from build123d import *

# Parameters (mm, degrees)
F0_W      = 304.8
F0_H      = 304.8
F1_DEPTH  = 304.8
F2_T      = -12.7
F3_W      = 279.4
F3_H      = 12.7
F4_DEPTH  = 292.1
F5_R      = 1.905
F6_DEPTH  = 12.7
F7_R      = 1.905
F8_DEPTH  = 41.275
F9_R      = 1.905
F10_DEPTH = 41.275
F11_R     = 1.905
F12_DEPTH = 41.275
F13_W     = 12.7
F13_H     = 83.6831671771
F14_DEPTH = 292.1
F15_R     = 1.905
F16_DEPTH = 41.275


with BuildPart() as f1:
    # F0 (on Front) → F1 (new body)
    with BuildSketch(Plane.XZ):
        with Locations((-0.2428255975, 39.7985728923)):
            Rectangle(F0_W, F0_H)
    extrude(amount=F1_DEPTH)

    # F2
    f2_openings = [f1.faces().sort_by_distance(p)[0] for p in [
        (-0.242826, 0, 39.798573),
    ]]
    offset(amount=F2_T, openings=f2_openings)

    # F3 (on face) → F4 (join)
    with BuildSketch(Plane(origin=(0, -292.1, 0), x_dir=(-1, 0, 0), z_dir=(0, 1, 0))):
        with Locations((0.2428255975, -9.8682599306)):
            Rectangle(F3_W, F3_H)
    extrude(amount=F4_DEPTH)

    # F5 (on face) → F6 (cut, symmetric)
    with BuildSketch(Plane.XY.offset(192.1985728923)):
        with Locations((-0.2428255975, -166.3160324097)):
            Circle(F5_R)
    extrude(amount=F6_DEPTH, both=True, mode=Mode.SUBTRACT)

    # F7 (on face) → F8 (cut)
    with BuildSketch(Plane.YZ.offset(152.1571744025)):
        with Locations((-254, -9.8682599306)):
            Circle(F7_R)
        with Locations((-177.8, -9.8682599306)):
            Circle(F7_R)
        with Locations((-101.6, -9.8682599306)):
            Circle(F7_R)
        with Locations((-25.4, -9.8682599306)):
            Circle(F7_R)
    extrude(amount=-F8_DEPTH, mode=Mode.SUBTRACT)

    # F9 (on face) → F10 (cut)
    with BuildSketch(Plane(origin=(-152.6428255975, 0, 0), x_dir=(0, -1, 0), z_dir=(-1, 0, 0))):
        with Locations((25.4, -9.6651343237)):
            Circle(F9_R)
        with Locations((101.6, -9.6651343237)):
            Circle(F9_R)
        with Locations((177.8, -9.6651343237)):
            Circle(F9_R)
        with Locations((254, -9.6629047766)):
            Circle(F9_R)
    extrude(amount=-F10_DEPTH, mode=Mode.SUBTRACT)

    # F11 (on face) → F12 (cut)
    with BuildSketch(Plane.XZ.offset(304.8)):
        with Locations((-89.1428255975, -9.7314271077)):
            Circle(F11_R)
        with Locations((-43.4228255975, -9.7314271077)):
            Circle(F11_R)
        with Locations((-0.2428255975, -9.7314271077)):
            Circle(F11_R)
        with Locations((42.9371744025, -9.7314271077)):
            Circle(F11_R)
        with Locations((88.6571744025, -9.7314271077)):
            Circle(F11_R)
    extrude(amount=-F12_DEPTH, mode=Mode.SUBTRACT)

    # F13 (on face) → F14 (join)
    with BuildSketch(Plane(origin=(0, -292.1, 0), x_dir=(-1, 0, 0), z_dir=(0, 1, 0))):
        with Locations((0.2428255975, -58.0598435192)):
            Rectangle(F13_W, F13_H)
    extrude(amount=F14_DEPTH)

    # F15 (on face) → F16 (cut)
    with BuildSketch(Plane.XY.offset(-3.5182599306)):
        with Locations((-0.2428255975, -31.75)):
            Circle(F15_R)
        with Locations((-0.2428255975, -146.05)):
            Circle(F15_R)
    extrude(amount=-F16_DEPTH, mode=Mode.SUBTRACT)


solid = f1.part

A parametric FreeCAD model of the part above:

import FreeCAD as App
import Part
import Sketcher

V = App.Vector
Q = App.Units.Quantity


def faces_at(feature, points):
    """Names of the faces that lie closest to the given points."""
    faces = feature.Shape.Faces
    near = lambda p: min(range(len(faces)), key=lambda i: faces[i].distToShape(Part.Vertex(*p))[0])
    return sorted({f"Face{near(p) + 1}" for p in points})


def add_polygon(sketch, points):
    """Adds a closed chain of lines whose ends are joined by coincident constraints."""
    first, n = sketch.GeometryCount, len(points)
    for a, b in zip(points, points[1:] + points[:1]):
        sketch.addGeometry(Part.LineSegment(App.Vector(*a, 0), App.Vector(*b, 0)), False)
    for i in range(n):
        sketch.addConstraint(Sketcher.Constraint("Coincident", first + i, 2, first + (i + 1) % n, 1))

doc = App.newDocument("Part")
params = doc.addObject("Spreadsheet::Sheet", "Params")
for row, (alias, value) in enumerate([
    ("sketch1_width", "12 in"),
    ("pad1_length", "12 in"),
    ("thickness_wall", "0.5 in"),
    ("sketch2_width", "11 in"),
    ("sketch2_height", "0.5 in"),
    ("pad2_length", "11.5 in"),
    ("sketch3_diameter", "0.15 in"),
    ("pocket1_length", "1 in"),
    ("sketch4_diameter", "0.15 in"),
    ("pocket2_length", "1.625 in"),
    ("sketch5_diameter", "0.15 in"),
    ("pocket3_length", "1.625 in"),
    ("sketch6_diameter", "0.15 in"),
    ("pocket4_length", "1.625 in"),
    ("sketch7_width", "0.5 in"),
    ("pad3_length", "11.5 in"),
    ("sketch8_diameter", "0.15 in"),
    ("pocket5_length", "1.625 in"),
], start=1):
    params.set(f"A{row}", alias)
    params.set(f"B{row}", "=" + value)
    params.setAlias(f"B{row}", alias)

body = doc.addObject("PartDesign::Body", "Body")

# Sketch on XZ plane
sketch1 = body.newObject("Sketcher::SketchObject", "Sketch")
sketch1.AttachmentSupport = (doc.getObject("XZ_Plane"), [""])
sketch1.MapMode = "FlatFace"
add_polygon(sketch1, [(-153, 192), (-153, -113), (152, -113), (152, 192)])  # lines 0-3
sketch1.addConstraint([
    Sketcher.Constraint("Vertical", 0),
    Sketcher.Constraint("Horizontal", 1),
    Sketcher.Constraint("Vertical", 2),
    Sketcher.Constraint("Horizontal", 3),
    Sketcher.Constraint("Equal", 3, 0),
    Sketcher.Constraint("DistanceX", 1, 1, 1, 2, Q("12 in")),
    Sketcher.Constraint("DistanceX", 0, 2, -1, 1, Q("152.642826 mm")),
    Sketcher.Constraint("DistanceY", 0, 2, -1, 1, Q("112.601427 mm")),
])
sketch1.setExpression("Constraints[9]", "Params.sketch1_width")
pad1 = body.newObject("PartDesign::Pad", "Pad")
pad1.Profile = sketch1
pad1.setExpression("Length", "Params.pad1_length")
doc.recompute()

thickness = body.newObject("PartDesign::Thickness", "Thickness")
thickness.Base = (pad1, faces_at(pad1, [(-0.243, 0, 39.799)]))
thickness.setExpression("Value", "Params.thickness_wall")
thickness.Reversed = True
thickness.Join = "Arc"

# Sketch on XZ plane
sketch2 = body.newObject("Sketcher::SketchObject", "Sketch001")
sketch2.AttachmentSupport = (doc.getObject("XZ_Plane"), [""])
sketch2.MapMode = "FlatFace"
sketch2.AttachmentOffset = App.Placement(V(0, 0, 11.5 * 25.4), App.Rotation())
add_polygon(sketch2, [(139, -4), (139, -16), (-140, -16), (-140, -4)])  # lines 0-3
sketch2.addConstraint([
    Sketcher.Constraint("Vertical", 0),
    Sketcher.Constraint("Horizontal", 1),
    Sketcher.Constraint("Vertical", 2),
    Sketcher.Constraint("Horizontal", 3),
    Sketcher.Constraint("DistanceX", 1, 2, 1, 1, Q("11 in")),
    Sketcher.Constraint("DistanceY", 0, 2, 0, 1, Q("0.5 in")),
    Sketcher.Constraint("DistanceY", 0, 2, -1, 1, Q("16.21826 mm")),
    Sketcher.Constraint("DistanceX", -1, 1, 0, 2, Q("139.457174 mm")),
])
sketch2.setExpression("Constraints[8]", "Params.sketch2_width")
sketch2.setExpression("Constraints[9]", "Params.sketch2_height")
pad2 = body.newObject("PartDesign::Pad", "Pad001")
pad2.Profile = sketch2
pad2.setExpression("Length", "Params.pad2_length")
pad2.Reversed = True

# Sketch on XY plane
sketch3 = body.newObject("Sketcher::SketchObject", "Sketch002")
sketch3.AttachmentSupport = (doc.getObject("XY_Plane"), [""])
sketch3.MapMode = "FlatFace"
sketch3.AttachmentOffset = App.Placement(V(0, 0, 192.198573), App.Rotation())
sketch3.addGeometry(Part.Circle(V(-0.2, -166.3, 0), V(0, 0, 1), 1.9), False)
sketch3.addConstraint([
    Sketcher.Constraint("Diameter", 0, Q("0.15 in")),
    Sketcher.Constraint("DistanceX", 0, 3, -1, 1, Q("0.242826 mm")),
    Sketcher.Constraint("DistanceY", 0, 3, -1, 1, Q("166.316032 mm")),
])
sketch3.setExpression("Constraints[0]", "Params.sketch3_diameter")
pocket1 = body.newObject("PartDesign::Pocket", "Pocket")
pocket1.Profile = sketch3
pocket1.setExpression("Length", "Params.pocket1_length")
pocket1.Midplane = True

# Sketch on YZ plane
sketch4 = body.newObject("Sketcher::SketchObject", "Sketch003")
sketch4.AttachmentSupport = (doc.getObject("YZ_Plane"), [""])
sketch4.MapMode = "FlatFace"
sketch4.AttachmentOffset = App.Placement(V(0, 0, 152.157174), App.Rotation())
sketch4.addGeometry([
    Part.Circle(V(-254, -9.9, 0), V(0, 0, 1), 1.9),
    Part.Circle(V(-177.8, -9.9, 0), V(0, 0, 1), 1.9),
    Part.Circle(V(-101.6, -9.9, 0), V(0, 0, 1), 1.9),
    Part.Circle(V(-25.4, -9.9, 0), V(0, 0, 1), 1.9),
], False)
sketch4.addConstraint([
    Sketcher.Constraint("Equal", 0, 1),
    Sketcher.Constraint("Equal", 1, 2),
    Sketcher.Constraint("Equal", 2, 3),
    Sketcher.Constraint("Horizontal", 0, 3, 1, 3),
    Sketcher.Constraint("Horizontal", 1, 3, 2, 3),
    Sketcher.Constraint("Horizontal", 2, 3, 3, 3),
    Sketcher.Constraint("Diameter", 0, Q("0.15 in")),
    Sketcher.Constraint("DistanceX", 0, 3, -1, 1, Q("10 in")),
    Sketcher.Constraint("DistanceX", 1, 3, -1, 1, Q("7 in")),
    Sketcher.Constraint("DistanceX", 2, 3, -1, 1, Q("4 in")),
    Sketcher.Constraint("DistanceX", 3, 3, -1, 1, Q("1 in")),
    Sketcher.Constraint("DistanceY", 0, 3, -1, 1, Q("9.86826 mm")),
])
sketch4.setExpression("Constraints[6]", "Params.sketch4_diameter")
pocket2 = body.newObject("PartDesign::Pocket", "Pocket001")
pocket2.Profile = sketch4
pocket2.setExpression("Length", "Params.pocket2_length")

# Sketch on YZ plane
sketch5 = body.newObject("Sketcher::SketchObject", "Sketch004")
sketch5.AttachmentSupport = (doc.getObject("YZ_Plane"), [""])
sketch5.MapMode = "FlatFace"
sketch5.AttachmentOffset = App.Placement(V(0, 0, -152.642826), App.Rotation())
sketch5.addGeometry([
    Part.Circle(V(-25.4, -9.7, 0), V(0, 0, 1), 1.9),
    Part.Circle(V(-101.6, -9.7, 0), V(0, 0, 1), 1.9),
    Part.Circle(V(-177.8, -9.7, 0), V(0, 0, 1), 1.9),
    Part.Circle(V(-254, -9.7, 0), V(0, 0, 1), 1.9),
], False)
sketch5.addConstraint([
    Sketcher.Constraint("Equal", 0, 1),
    Sketcher.Constraint("Equal", 1, 2),
    Sketcher.Constraint("Equal", 2, 3),
    Sketcher.Constraint("Horizontal", 0, 3, 1, 3),
    Sketcher.Constraint("Horizontal", 1, 3, 2, 3),
    Sketcher.Constraint("Diameter", 0, Q("0.15 in")),
    Sketcher.Constraint("DistanceX", 0, 3, -1, 1, Q("1 in")),
    Sketcher.Constraint("DistanceX", 1, 3, -1, 1, Q("4 in")),
    Sketcher.Constraint("DistanceX", 2, 3, -1, 1, Q("7 in")),
    Sketcher.Constraint("DistanceX", 3, 3, -1, 1, Q("10 in")),
    Sketcher.Constraint("DistanceY", 2, 3, 3, 3, Q("0.00223 mm")),
    Sketcher.Constraint("DistanceY", 0, 3, -1, 1, Q("9.665134 mm")),
])
sketch5.setExpression("Constraints[5]", "Params.sketch5_diameter")
pocket3 = body.newObject("PartDesign::Pocket", "Pocket002")
pocket3.Profile = sketch5
pocket3.setExpression("Length", "Params.pocket3_length")
pocket3.Reversed = True

# Sketch on XZ plane
sketch6 = body.newObject("Sketcher::SketchObject", "Sketch005")
sketch6.AttachmentSupport = (doc.getObject("XZ_Plane"), [""])
sketch6.MapMode = "FlatFace"
sketch6.AttachmentOffset = App.Placement(V(0, 0, 12 * 25.4), App.Rotation())
sketch6.addGeometry([
    Part.Circle(V(-89.1, -9.7, 0), V(0, 0, 1), 1.9),  # 0
    Part.Circle(V(-43.4, -9.7, 0), V(0, 0, 1), 1.9),  # 1
    Part.Circle(V(-0.2, -9.7, 0), V(0, 0, 1), 1.9),  # 2
    Part.Circle(V(42.9, -9.7, 0), V(0, 0, 1), 1.9),  # 3
    Part.Circle(V(88.7, -9.7, 0), V(0, 0, 1), 1.9),  # 4
], False)
sketch6.addConstraint([
    Sketcher.Constraint("Equal", 0, 1),
    Sketcher.Constraint("Equal", 1, 2),
    Sketcher.Constraint("Equal", 2, 3),
    Sketcher.Constraint("Equal", 3, 4),
    Sketcher.Constraint("Horizontal", 0, 3, 1, 3),
    Sketcher.Constraint("Horizontal", 1, 3, 2, 3),
    Sketcher.Constraint("Horizontal", 2, 3, 3, 3),
    Sketcher.Constraint("Horizontal", 3, 3, 4, 3),
    Sketcher.Constraint("Diameter", 0, Q("0.15 in")),
    Sketcher.Constraint("DistanceX", 0, 3, 4, 3, Q("7 in")),
    Sketcher.Constraint("DistanceX", 0, 3, 1, 3, Q("1.8 in")),
    Sketcher.Constraint("DistanceX", 1, 3, 2, 3, Q("1.7 in")),
    Sketcher.Constraint("DistanceX", 2, 3, 3, 3, Q("1.7 in")),
    Sketcher.Constraint("DistanceX", 0, 3, -1, 1, Q("89.142826 mm")),
    Sketcher.Constraint("DistanceY", 0, 3, -1, 1, Q("9.731427 mm")),
])
sketch6.setExpression("Constraints[8]", "Params.sketch6_diameter")
pocket4 = body.newObject("PartDesign::Pocket", "Pocket003")
pocket4.Profile = sketch6
pocket4.setExpression("Length", "Params.pocket4_length")

# Sketch on XZ plane
sketch7 = body.newObject("Sketcher::SketchObject", "Sketch006")
sketch7.AttachmentSupport = (doc.getObject("XZ_Plane"), [""])
sketch7.MapMode = "FlatFace"
sketch7.AttachmentOffset = App.Placement(V(0, 0, 11.5 * 25.4), App.Rotation())
add_polygon(sketch7, [(6, -16), (6, -100), (-7, -100), (-7, -16)])  # lines 0-3
sketch7.addConstraint([
    Sketcher.Constraint("Vertical", 0),
    Sketcher.Constraint("Horizontal", 1),
    Sketcher.Constraint("Vertical", 2),
    Sketcher.Constraint("Horizontal", 3),
    Sketcher.Constraint("DistanceX", 1, 2, 1, 1, Q("0.5 in")),
    Sketcher.Constraint("DistanceY", 0, 2, 0, 1, Q("83.683167 mm")),
    Sketcher.Constraint("DistanceY", 2, 2, -1, 1, Q("16.21826 mm")),
    Sketcher.Constraint("DistanceX", -1, 1, 0, 2, Q("6.107174 mm")),
])
sketch7.setExpression("Constraints[8]", "Params.sketch7_width")
pad3 = body.newObject("PartDesign::Pad", "Pad002")
pad3.Profile = sketch7
pad3.setExpression("Length", "Params.pad3_length")
pad3.Reversed = True

# Sketch on XY plane
sketch8 = body.newObject("Sketcher::SketchObject", "Sketch007")
sketch8.AttachmentSupport = (doc.getObject("XY_Plane"), [""])
sketch8.MapMode = "FlatFace"
sketch8.AttachmentOffset = App.Placement(V(0, 0, -3.51826), App.Rotation())
sketch8.addGeometry([
    Part.Circle(V(-0.2, -31.8, 0), V(0, 0, 1), 1.9),
    Part.Circle(V(-0.2, -146.1, 0), V(0, 0, 1), 1.9),
], False)
sketch8.addConstraint([
    Sketcher.Constraint("Equal", 0, 1),
    Sketcher.Constraint("Vertical", 0, 3, 1, 3),
    Sketcher.Constraint("Diameter", 0, Q("0.15 in")),
    Sketcher.Constraint("DistanceY", 1, 3, 0, 3, Q("4.5 in")),
    Sketcher.Constraint("DistanceY", 0, 3, -1, 1, Q("1.25 in")),
    Sketcher.Constraint("DistanceX", 0, 3, -1, 1, Q("0.242826 mm")),
])
sketch8.setExpression("Constraints[2]", "Params.sketch8_diameter")
pocket5 = body.newObject("PartDesign::Pocket", "Pocket004")
pocket5.Profile = sketch8
pocket5.setExpression("Length", "Params.pocket5_length")

doc.recompute()
